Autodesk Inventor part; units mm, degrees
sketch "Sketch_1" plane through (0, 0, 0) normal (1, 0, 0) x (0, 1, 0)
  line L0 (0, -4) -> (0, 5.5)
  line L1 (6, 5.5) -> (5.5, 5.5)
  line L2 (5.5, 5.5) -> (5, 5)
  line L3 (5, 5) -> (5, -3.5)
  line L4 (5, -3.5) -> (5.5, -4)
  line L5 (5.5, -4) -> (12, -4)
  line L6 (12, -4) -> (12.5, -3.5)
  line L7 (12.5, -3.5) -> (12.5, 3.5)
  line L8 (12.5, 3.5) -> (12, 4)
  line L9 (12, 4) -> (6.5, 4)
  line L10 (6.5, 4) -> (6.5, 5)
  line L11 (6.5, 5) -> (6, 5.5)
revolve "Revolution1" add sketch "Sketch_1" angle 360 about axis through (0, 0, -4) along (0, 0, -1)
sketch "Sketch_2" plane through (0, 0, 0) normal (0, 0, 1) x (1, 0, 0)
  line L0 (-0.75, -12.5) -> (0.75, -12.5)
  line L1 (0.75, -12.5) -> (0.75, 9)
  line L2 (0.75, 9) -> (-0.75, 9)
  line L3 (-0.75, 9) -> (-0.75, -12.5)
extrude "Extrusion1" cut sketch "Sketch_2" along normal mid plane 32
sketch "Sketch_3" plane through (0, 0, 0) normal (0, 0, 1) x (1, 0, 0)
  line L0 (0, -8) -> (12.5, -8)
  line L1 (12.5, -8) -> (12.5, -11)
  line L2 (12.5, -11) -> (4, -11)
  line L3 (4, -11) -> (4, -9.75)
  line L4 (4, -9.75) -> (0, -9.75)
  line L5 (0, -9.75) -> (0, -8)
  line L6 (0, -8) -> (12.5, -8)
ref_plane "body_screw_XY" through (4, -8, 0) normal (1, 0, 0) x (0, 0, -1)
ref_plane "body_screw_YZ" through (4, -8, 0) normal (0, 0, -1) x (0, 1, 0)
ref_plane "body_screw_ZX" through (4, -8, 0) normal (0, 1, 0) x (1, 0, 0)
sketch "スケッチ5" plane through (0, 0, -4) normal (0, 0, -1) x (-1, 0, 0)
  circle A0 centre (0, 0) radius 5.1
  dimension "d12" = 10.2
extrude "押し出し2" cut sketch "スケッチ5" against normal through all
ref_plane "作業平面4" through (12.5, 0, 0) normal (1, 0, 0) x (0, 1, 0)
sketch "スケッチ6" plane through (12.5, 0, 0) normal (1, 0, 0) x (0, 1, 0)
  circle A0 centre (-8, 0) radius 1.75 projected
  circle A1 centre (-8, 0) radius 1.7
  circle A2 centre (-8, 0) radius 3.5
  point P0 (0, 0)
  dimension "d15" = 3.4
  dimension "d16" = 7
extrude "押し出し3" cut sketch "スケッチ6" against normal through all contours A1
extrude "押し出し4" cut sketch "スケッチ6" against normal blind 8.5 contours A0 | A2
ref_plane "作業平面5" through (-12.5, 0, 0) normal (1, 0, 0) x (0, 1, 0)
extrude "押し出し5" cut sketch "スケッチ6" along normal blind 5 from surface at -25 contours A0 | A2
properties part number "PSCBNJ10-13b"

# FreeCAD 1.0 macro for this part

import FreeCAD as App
import Part
import Sketcher
from FreeCAD import Vector
Q = App.Units.Quantity

doc = App.newDocument("Part")
params = doc.addObject("Spreadsheet::Sheet", "Params")
for row, (alias, value) in enumerate([
    ("sketch1_height", "7 mm"),
    ("sketch1_height2", "1 mm"),
    ("sketch1_width", "0.5 mm"),
    ("sketch1_width2", "6.5 mm"),
    ("sketch1_width3", "5.5 mm"),
    ("revolution_angle", "360 deg"),
    ("sketch2_width", "1.5 mm"),
    ("sketch2_height", "21.5 mm"),
    ("pocket1_length", "32 mm"),
    ("sketch3_diameter", "10.2 mm"),
    ("sketch4_diameter", "3.4 mm"),
    ("sketch5_diameter", "7 mm"),
    ("sketch5_diameter2", "3.4 mm"),
    ("pocket4_length", "8.5 mm"),
    ("sketch6_diameter", "7 mm"),
    ("sketch6_diameter2", "3.4 mm"),
    ("pocket5_length", "5 mm"),
], start=1):
    params.set(f"A{row}", alias)
    params.set(f"B{row}", "=" + value)
    params.setAlias(f"B{row}", alias)

body = doc.addObject("PartDesign::Body", "Body")

sketch1 = body.newObject("Sketcher::SketchObject", "Sketch")
sketch1.AttachmentSupport = (doc.getObject("YZ_Plane"), [""])
sketch1.MapMode = "FlatFace"
sketch1.addGeometry(Part.LineSegment(Vector(6.5, 5, 0), Vector(6, 5.5, 0)), False)
sketch1.addGeometry(Part.LineSegment(Vector(6, 5.5, 0), Vector(5.5, 5.5, 0)), False)
sketch1.addGeometry(Part.LineSegment(Vector(5.5, 5.5, 0), Vector(5, 5, 0)), False)
sketch1.addGeometry(Part.LineSegment(Vector(5, 5, 0), Vector(5, -3.5, 0)), False)
sketch1.addGeometry(Part.LineSegment(Vector(5, -3.5, 0), Vector(5.5, -4, 0)), False)
sketch1.addGeometry(Part.LineSegment(Vector(5.5, -4, 0), Vector(12, -4, 0)), False)
sketch1.addGeometry(Part.LineSegment(Vector(12, -4, 0), Vector(12.5, -3.5, 0)), False)
sketch1.addGeometry(Part.LineSegment(Vector(12.5, -3.5, 0), Vector(12.5, 3.5, 0)), False)
sketch1.addGeometry(Part.LineSegment(Vector(12.5, 3.5, 0), Vector(12, 4, 0)), False)
sketch1.addGeometry(Part.LineSegment(Vector(12, 4, 0), Vector(6.5, 4, 0)), False)
sketch1.addGeometry(Part.LineSegment(Vector(6.5, 4, 0), Vector(6.5, 5, 0)), False)
sketch1.addConstraint(Sketcher.Constraint("Coincident", 0, 2, 1, 1))
sketch1.addConstraint(Sketcher.Constraint("Coincident", 1, 2, 2, 1))
sketch1.addConstraint(Sketcher.Constraint("Coincident", 2, 2, 3, 1))
sketch1.addConstraint(Sketcher.Constraint("Coincident", 3, 2, 4, 1))
sketch1.addConstraint(Sketcher.Constraint("Coincident", 4, 2, 5, 1))
sketch1.addConstraint(Sketcher.Constraint("Coincident", 5, 2, 6, 1))
sketch1.addConstraint(Sketcher.Constraint("Coincident", 6, 2, 7, 1))
sketch1.addConstraint(Sketcher.Constraint("Coincident", 7, 2, 8, 1))
sketch1.addConstraint(Sketcher.Constraint("Coincident", 8, 2, 9, 1))
sketch1.addConstraint(Sketcher.Constraint("Coincident", 9, 2, 10, 1))
sketch1.addConstraint(Sketcher.Constraint("Coincident", 10, 2, 0, 1))
sketch1.addConstraint(Sketcher.Constraint("Horizontal", 1))
sketch1.addConstraint(Sketcher.Constraint("Vertical", 3))
sketch1.addConstraint(Sketcher.Constraint("Horizontal", 5))
sketch1.addConstraint(Sketcher.Constraint("Vertical", 7))
sketch1.addConstraint(Sketcher.Constraint("Horizontal", 9))
sketch1.addConstraint(Sketcher.Constraint("Vertical", 10))
sketch1.addConstraint(Sketcher.Constraint("Symmetric", 5, 2, 8, 2, -1))
sketch1.addConstraint(Sketcher.Constraint("Perpendicular", 0, 2))
sketch1.addConstraint(Sketcher.Constraint("Perpendicular", 2, 4))
sketch1.addConstraint(Sketcher.Constraint("Perpendicular", 4, 6))
sketch1.addConstraint(Sketcher.Constraint("Perpendicular", 6, 8))
sketch1.addConstraint(Sketcher.Constraint("Horizontal", 3, 2, 6, 2))
sketch1.addConstraint(Sketcher.Constraint("Horizontal", 2, 2, 10, 2))
sketch1.addConstraint(Sketcher.Constraint("Vertical", 1, 2, 4, 2))
sketch1.addConstraint(Sketcher.Constraint("Equal", 0, 2))
sketch1.addConstraint(Sketcher.Constraint("DistanceY", 7, 1, 7, 2, Q("7 mm")))
sketch1.addConstraint(Sketcher.Constraint("DistanceY", 10, 1, 10, 2, Q("1 mm")))
sketch1.addConstraint(Sketcher.Constraint("DistanceX", 1, 2, 1, 1, Q("0.5 mm")))
sketch1.addConstraint(Sketcher.Constraint("DistanceX", 5, 1, 5, 2, Q("6.5 mm")))
sketch1.addConstraint(Sketcher.Constraint("DistanceX", 9, 2, 9, 1, Q("5.5 mm")))
sketch1.addConstraint(Sketcher.Constraint("DistanceX", -1, 1, 0, 2, Q("6 mm")))
sketch1.setExpression("Constraints[26]", "Params.sketch1_height")
sketch1.setExpression("Constraints[27]", "Params.sketch1_height2")
sketch1.setExpression("Constraints[28]", "Params.sketch1_width")
sketch1.setExpression("Constraints[29]", "Params.sketch1_width2")
sketch1.setExpression("Constraints[30]", "Params.sketch1_width3")
revolution = body.newObject("PartDesign::Revolution", "Revolution")
revolution.Profile = sketch1
revolution.ReferenceAxis = (sketch1, ["V_Axis"])
revolution.setExpression("Angle", "Params.revolution_angle")

sketch2 = body.newObject("Sketcher::SketchObject", "Sketch001")
sketch2.AttachmentSupport = (doc.getObject("XY_Plane"), [""])
sketch2.MapMode = "FlatFace"
sketch2.addGeometry(Part.LineSegment(Vector(-0.75, 9, 0), Vector(-0.75, -12.5, 0)), False)
sketch2.addGeometry(Part.LineSegment(Vector(-0.75, -12.5, 0), Vector(0.75, -12.5, 0)), False)
sketch2.addGeometry(Part.LineSegment(Vector(0.75, -12.5, 0), Vector(0.75, 9, 0)), False)
sketch2.addGeometry(Part.LineSegment(Vector(0.75, 9, 0), Vector(-0.75, 9, 0)), False)
sketch2.addConstraint(Sketcher.Constraint("Coincident", 0, 2, 1, 1))
sketch2.addConstraint(Sketcher.Constraint("Coincident", 1, 2, 2, 1))
sketch2.addConstraint(Sketcher.Constraint("Coincident", 2, 2, 3, 1))
sketch2.addConstraint(Sketcher.Constraint("Coincident", 3, 2, 0, 1))
sketch2.addConstraint(Sketcher.Constraint("Vertical", 0))
sketch2.addConstraint(Sketcher.Constraint("Horizontal", 1))
sketch2.addConstraint(Sketcher.Constraint("Vertical", 2))
sketch2.addConstraint(Sketcher.Constraint("Horizontal", 3))
sketch2.addConstraint(Sketcher.Constraint("DistanceX", 1, 1, 1, 2, Q("1.5 mm")))
sketch2.addConstraint(Sketcher.Constraint("DistanceY", 0, 2, 0, 1, Q("21.5 mm")))
sketch2.addConstraint(Sketcher.Constraint("DistanceY", -1, 1, 2, 2, Q("9 mm")))
sketch2.addConstraint(Sketcher.Constraint("DistanceX", 0, 2, -1, 1, Q("0.75 mm")))
sketch2.setExpression("Constraints[8]", "Params.sketch2_width")
sketch2.setExpression("Constraints[9]", "Params.sketch2_height")
pocket1 = body.newObject("PartDesign::Pocket", "Pocket")
pocket1.Profile = sketch2
pocket1.setExpression("Length", "Params.pocket1_length")
pocket1.Midplane = True

sketch3 = body.newObject("Sketcher::SketchObject", "Sketch002")
sketch3.AttachmentSupport = (doc.getObject("XY_Plane"), [""])
sketch3.MapMode = "FlatFace"
sketch3.AttachmentOffset = App.Placement(Vector(0, 0, -4), App.Rotation())
sketch3.addGeometry(Part.Circle(Vector(0, 0, 0), Vector(0, 0, 1), 5.1), False)
sketch3.addConstraint(Sketcher.Constraint("Coincident", 0, 3, -1, 1))
sketch3.addConstraint(Sketcher.Constraint("Diameter", 0, Q("10.2 mm")))
sketch3.setExpression("Constraints[1]", "Params.sketch3_diameter")
pocket2 = body.newObject("PartDesign::Pocket", "Pocket001")
pocket2.Profile = sketch3
pocket2.Type = "ThroughAll"
pocket2.Reversed = True

sketch4 = body.newObject("Sketcher::SketchObject", "Sketch003")
sketch4.AttachmentSupport = (doc.getObject("YZ_Plane"), [""])
sketch4.MapMode = "FlatFace"
sketch4.AttachmentOffset = App.Placement(Vector(0, 0, 12.5), App.Rotation())
sketch4.addGeometry(Part.Circle(Vector(-8, 0, 0), Vector(0, 0, 1), 1.7), False)
sketch4.addConstraint(Sketcher.Constraint("PointOnObject", 0, 3, -1))
sketch4.addConstraint(Sketcher.Constraint("Diameter", 0, Q("3.4 mm")))
sketch4.addConstraint(Sketcher.Constraint("DistanceX", 0, 3, -1, 1, Q("8 mm")))
sketch4.setExpression("Constraints[1]", "Params.sketch4_diameter")
pocket3 = body.newObject("PartDesign::Pocket", "Pocket002")
pocket3.Profile = sketch4
pocket3.Type = "ThroughAll"

sketch5 = body.newObject("Sketcher::SketchObject", "Sketch004")
sketch5.AttachmentSupport = (doc.getObject("YZ_Plane"), [""])
sketch5.MapMode = "FlatFace"
sketch5.AttachmentOffset = App.Placement(Vector(0, 0, 12.5), App.Rotation())
sketch5.addGeometry(Part.Circle(Vector(-8, 0, 0), Vector(0, 0, 1), 3.5), False)
sketch5.addGeometry(Part.Circle(Vector(-8, 0, 0), Vector(0, 0, 1), 1.7), False)
sketch5.addConstraint(Sketcher.Constraint("Coincident", 1, 3, 0, 3))
sketch5.addConstraint(Sketcher.Constraint("PointOnObject", 0, 3, -1))
sketch5.addConstraint(Sketcher.Constraint("Diameter", 0, Q("7 mm")))
sketch5.addConstraint(Sketcher.Constraint("Diameter", 1, Q("3.4 mm")))
sketch5.addConstraint(Sketcher.Constraint("DistanceX", 0, 3, -1, 1, Q("8 mm")))
sketch5.setExpression("Constraints[2]", "Params.sketch5_diameter")
sketch5.setExpression("Constraints[3]", "Params.sketch5_diameter2")
pocket4 = body.newObject("PartDesign::Pocket", "Pocket003")
pocket4.Profile = sketch5
pocket4.setExpression("Length", "Params.pocket4_length")

sketch6 = body.newObject("Sketcher::SketchObject", "Sketch005")
sketch6.AttachmentSupport = (doc.getObject("YZ_Plane"), [""])
sketch6.MapMode = "FlatFace"
sketch6.AttachmentOffset = App.Placement(Vector(0, 0, -12.5), App.Rotation())
sketch6.addGeometry(Part.Circle(Vector(-8, 0, 0), Vector(0, 0, 1), 3.5), False)
sketch6.addGeometry(Part.Circle(Vector(-8, 0, 0), Vector(0, 0, 1), 1.7), False)
sketch6.addConstraint(Sketcher.Constraint("Coincident", 1, 3, 0, 3))
sketch6.addConstraint(Sketcher.Constraint("PointOnObject", 0, 3, -1))
sketch6.addConstraint(Sketcher.Constraint("Diameter", 0, Q("7 mm")))
sketch6.addConstraint(Sketcher.Constraint("Diameter", 1, Q("3.4 mm")))
sketch6.addConstraint(Sketcher.Constraint("DistanceX", 0, 3, -1, 1, Q("8 mm")))
sketch6.setExpression("Constraints[2]", "Params.sketch6_diameter")
sketch6.setExpression("Constraints[3]", "Params.sketch6_diameter2")
pocket5 = body.newObject("PartDesign::Pocket", "Pocket004")
pocket5.Profile = sketch6
pocket5.setExpression("Length", "Params.pocket5_length")
pocket5.Reversed = True

doc.recompute()
